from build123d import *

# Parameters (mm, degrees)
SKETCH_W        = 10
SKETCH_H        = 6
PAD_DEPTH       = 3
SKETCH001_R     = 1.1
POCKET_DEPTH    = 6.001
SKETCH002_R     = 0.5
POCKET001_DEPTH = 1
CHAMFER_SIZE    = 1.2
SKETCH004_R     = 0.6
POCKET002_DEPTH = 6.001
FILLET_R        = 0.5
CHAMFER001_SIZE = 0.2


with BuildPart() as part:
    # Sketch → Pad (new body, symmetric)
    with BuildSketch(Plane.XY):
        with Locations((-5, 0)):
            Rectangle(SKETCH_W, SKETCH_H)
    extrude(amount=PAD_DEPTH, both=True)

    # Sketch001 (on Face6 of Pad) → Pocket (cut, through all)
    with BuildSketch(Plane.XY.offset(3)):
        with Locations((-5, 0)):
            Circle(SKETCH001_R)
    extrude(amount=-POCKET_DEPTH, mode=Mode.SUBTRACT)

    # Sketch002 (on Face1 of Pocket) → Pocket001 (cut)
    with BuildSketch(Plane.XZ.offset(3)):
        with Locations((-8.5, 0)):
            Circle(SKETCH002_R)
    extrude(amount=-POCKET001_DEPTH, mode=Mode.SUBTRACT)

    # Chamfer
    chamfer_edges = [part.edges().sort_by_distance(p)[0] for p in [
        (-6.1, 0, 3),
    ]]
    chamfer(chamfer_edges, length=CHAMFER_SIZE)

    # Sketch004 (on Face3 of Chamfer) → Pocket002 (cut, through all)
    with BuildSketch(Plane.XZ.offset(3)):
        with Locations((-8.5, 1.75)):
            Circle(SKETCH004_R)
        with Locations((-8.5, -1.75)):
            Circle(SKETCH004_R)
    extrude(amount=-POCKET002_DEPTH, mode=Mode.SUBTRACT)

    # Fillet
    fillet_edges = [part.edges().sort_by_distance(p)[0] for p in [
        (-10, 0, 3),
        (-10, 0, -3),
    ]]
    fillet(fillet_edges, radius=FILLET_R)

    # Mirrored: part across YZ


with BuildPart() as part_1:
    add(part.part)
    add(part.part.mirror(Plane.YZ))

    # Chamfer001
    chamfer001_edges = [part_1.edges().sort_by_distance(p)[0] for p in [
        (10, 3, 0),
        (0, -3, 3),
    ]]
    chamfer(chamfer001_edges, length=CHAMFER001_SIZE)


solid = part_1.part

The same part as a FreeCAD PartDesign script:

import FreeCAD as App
import Part
import Sketcher


def edges_at(feature, points):
    """Names of the edges that pass closest to the given points."""
    edges = feature.Shape.Edges
    near = lambda p: min(range(len(edges)), key=lambda i: edges[i].distToShape(Part.Vertex(*p))[0])
    return sorted({f"Edge{near(p) + 1}" for p in points})


def add_polygon(sketch, points):
    """Adds a closed chain of lines whose ends are joined by coincident constraints."""
    first, n = sketch.GeometryCount, len(points)
    for a, b in zip(points, points[1:] + points[:1]):
        sketch.addGeometry(Part.LineSegment(App.Vector(*a, 0), App.Vector(*b, 0)), False)
    for i in range(n):
        sketch.addConstraint(Sketcher.Constraint("Coincident", first + i, 2, first + (i + 1) % n, 1))

doc = App.newDocument("Part")
params = doc.addObject("Spreadsheet::Sheet", "Params")
for row, (alias, value) in enumerate([
    ("sketch1_width", "10 mm"),
    ("sketch1_height", "6 mm"),
    ("pad1_length", "6 mm"),
    ("sketch2_diameter", "2.2 mm"),
    ("sketch3_diameter", "1 mm"),
    ("pocket2_length", "1 mm"),
    ("chamfer_size", "1.2 mm"),
    ("sketch4_diameter", "1.2 mm"),
    ("fillet_radius", "0.5 mm"),
    ("chamfer2_size", "0.2 mm"),
], start=1):
    params.set(f"A{row}", alias)
    params.set(f"B{row}", "=" + value)
    params.setAlias(f"B{row}", alias)

body = doc.addObject("PartDesign::Body", "Body")

sketch1 = body.newObject("Sketcher::SketchObject", "Sketch")
sketch1.AttachmentSupport = (doc.getObject("XY_Plane"), [""])
sketch1.MapMode = "FlatFace"
add_polygon(sketch1, [(-10, 3), (-10, -3), (0, -3), (0, 3)])
sketch1.addConstraint([
    Sketcher.Constraint("Vertical", 0),
    Sketcher.Constraint("Horizontal", 1),
    Sketcher.Constraint("Vertical", 2),
    Sketcher.Constraint("Horizontal", 3),
    Sketcher.Constraint("Symmetric", 1, 2, 2, 2, -1, 1),
    Sketcher.Constraint("DistanceX", 1, 1, 1, 2, 10.0),
    Sketcher.Constraint("DistanceY", 0, 2, 0, 1, 6.0),
])
sketch1.setExpression("Constraints[9]", "Params.sketch1_width")
sketch1.setExpression("Constraints[10]", "Params.sketch1_height")
pad1 = body.newObject("PartDesign::Pad", "Pad")
pad1.Profile = sketch1
pad1.setExpression("Length", "Params.pad1_length")
pad1.Midplane = True

sketch2 = body.newObject("Sketcher::SketchObject", "Sketch001")
sketch2.AttachmentSupport = (doc.getObject("XY_Plane"), [""])
sketch2.MapMode = "FlatFace"
sketch2.AttachmentOffset = App.Placement(App.Vector(0, 0, 3), App.Rotation())
sketch2.addGeometry(Part.Circle(App.Vector(-5, 0, 0), App.Vector(0, 0, 1), 1.1), False)
sketch2.addConstraint([
    Sketcher.Constraint("PointOnObject", 0, 3, -1),
    Sketcher.Constraint("Diameter", 0, 2.2),
    Sketcher.Constraint("DistanceX", 0, 3, -1, 1, 5.0),
])
sketch2.setExpression("Constraints[1]", "Params.sketch2_diameter")
pocket1 = body.newObject("PartDesign::Pocket", "Pocket")
pocket1.Profile = sketch2
pocket1.Type = "ThroughAll"

sketch3 = body.newObject("Sketcher::SketchObject", "Sketch002")
sketch3.AttachmentSupport = (doc.getObject("XZ_Plane"), [""])
sketch3.MapMode = "FlatFace"
sketch3.AttachmentOffset = App.Placement(App.Vector(0, 0, 3), App.Rotation())
sketch3.addGeometry(Part.Circle(App.Vector(-8.5, 0, 0), App.Vector(0, 0, 1), 0.5), False)
sketch3.addConstraint([
    Sketcher.Constraint("PointOnObject", 0, 3, -1),
    Sketcher.Constraint("Diameter", 0, 1.0),
    Sketcher.Constraint("DistanceX", 0, 3, -1, 1, 8.5),
])
sketch3.setExpression("Constraints[1]", "Params.sketch3_diameter")
pocket2 = body.newObject("PartDesign::Pocket", "Pocket001")
pocket2.Profile = sketch3
pocket2.setExpression("Length", "Params.pocket2_length")
doc.recompute()

chamfer = body.newObject("PartDesign::Chamfer", "Chamfer")
chamfer.Base = (pocket2, edges_at(pocket2, [(-6.1, 0, 3)]))
chamfer.setExpression("Size", "Params.chamfer_size")

sketch4 = body.newObject("Sketcher::SketchObject", "Sketch003")
sketch4.AttachmentSupport = (doc.getObject("XZ_Plane"), [""])
sketch4.MapMode = "FlatFace"
sketch4.AttachmentOffset = App.Placement(App.Vector(0, 0, 3), App.Rotation())
sketch4.addGeometry([
    Part.Circle(App.Vector(-8.5, 1.8, 0), App.Vector(0, 0, 1), 0.6),
    Part.Circle(App.Vector(-8.5, -1.8, 0), App.Vector(0, 0, 1), 0.6),
], False)
sketch4.addConstraint([
    Sketcher.Constraint("Equal", 0, 1),
    Sketcher.Constraint("Symmetric", 0, 3, 1, 3, -1),
    Sketcher.Constraint("Diameter", 0, 1.2),
    Sketcher.Constraint("DistanceX", 0, 3, -1, 1, 8.5),
    Sketcher.Constraint("DistanceY", 1, 3, 0, 3, 3.5),
])
sketch4.setExpression("Constraints[2]", "Params.sketch4_diameter")
pocket3 = body.newObject("PartDesign::Pocket", "Pocket002")
pocket3.Profile = sketch4
pocket3.Type = "ThroughAll"
doc.recompute()

fillet = body.newObject("PartDesign::Fillet", "Fillet")
fillet.Base = (pocket3, edges_at(pocket3, [(-10, 0, 3), (-10, 0, -3)]))
fillet.setExpression("Radius", "Params.fillet_radius")
body2 = doc.addObject("PartDesign::Body", "Body001")
doc.recompute()

body2.BaseFeature = body
doc.recompute()

mirroring = doc.addObject("Part::Mirroring", "Mirroring")
mirroring.Source = body
mirroring.Base = App.Vector(0, 0, 0)
mirroring.Normal = App.Vector(1, 0, 0)
body3 = doc.addObject("PartDesign::Body", "Body002")
body3.BaseFeature = mirroring
boolean = body2.newObject("PartDesign::Boolean", "Boolean")
boolean.Type = "Fuse"
boolean.addObjects([body3])
doc.recompute()

chamfer2 = body2.newObject("PartDesign::Chamfer", "Chamfer001")
chamfer2.Base = (boolean, edges_at(boolean, [(10, 3, 0), (0, -3, 3)]))
chamfer2.setExpression("Size", "Params.chamfer2_size")
mirroring.Visibility = False

doc.recompute()
